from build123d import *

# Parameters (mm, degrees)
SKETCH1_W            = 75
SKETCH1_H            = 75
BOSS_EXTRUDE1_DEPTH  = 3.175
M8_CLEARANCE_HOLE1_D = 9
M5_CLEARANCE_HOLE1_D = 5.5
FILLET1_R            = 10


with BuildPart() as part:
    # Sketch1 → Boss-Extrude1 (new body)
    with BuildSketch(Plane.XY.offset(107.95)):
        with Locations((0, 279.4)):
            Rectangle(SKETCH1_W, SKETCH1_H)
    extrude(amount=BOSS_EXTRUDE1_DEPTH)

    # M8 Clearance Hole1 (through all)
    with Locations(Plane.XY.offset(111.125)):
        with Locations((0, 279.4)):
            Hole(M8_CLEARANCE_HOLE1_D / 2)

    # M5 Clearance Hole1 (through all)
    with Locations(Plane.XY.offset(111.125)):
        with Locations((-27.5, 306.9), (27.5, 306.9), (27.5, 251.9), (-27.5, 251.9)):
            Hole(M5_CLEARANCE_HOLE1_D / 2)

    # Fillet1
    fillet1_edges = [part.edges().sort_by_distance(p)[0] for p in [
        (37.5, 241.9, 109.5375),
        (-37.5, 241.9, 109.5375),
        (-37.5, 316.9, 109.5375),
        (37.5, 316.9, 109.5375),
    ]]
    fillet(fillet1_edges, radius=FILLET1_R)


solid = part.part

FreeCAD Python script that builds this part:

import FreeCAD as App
import Part
import Sketcher

V = App.Vector
Q = App.Units.Quantity


def edges_at(feature, points):
    """Names of the edges that pass closest to the given points."""
    edges = feature.Shape.Edges
    near = lambda p: min(range(len(edges)), key=lambda i: edges[i].distToShape(Part.Vertex(*p))[0])
    return sorted({f"Edge{near(p) + 1}" for p in points})


def add_polygon(sketch, points):
    """Adds a closed chain of lines whose ends are joined by coincident constraints."""
    first, n = sketch.GeometryCount, len(points)
    for a, b in zip(points, points[1:] + points[:1]):
        sketch.addGeometry(Part.LineSegment(App.Vector(*a, 0), App.Vector(*b, 0)), False)
    for i in range(n):
        sketch.addConstraint(Sketcher.Constraint("Coincident", first + i, 2, first + (i + 1) % n, 1))

doc = App.newDocument("Part")
body = doc.addObject("PartDesign::Body", "Body")

sketch1 = body.newObject("Sketcher::SketchObject", "Sketch")
sketch1.AttachmentSupport = (doc.getObject("XY_Plane"), [""])
sketch1.MapMode = "FlatFace"
sketch1.AttachmentOffset = App.Placement(V(0, 0, 107.95), App.Rotation())
add_polygon(sketch1, [(-38, 317), (-38, 242), (38, 242), (38, 317)])
sketch1.addConstraint(Sketcher.Constraint("Vertical", 0))
sketch1.addConstraint(Sketcher.Constraint("Horizontal", 1))
sketch1.addConstraint(Sketcher.Constraint("Vertical", 2))
sketch1.addConstraint(Sketcher.Constraint("Horizontal", 3))
sketch1.addConstraint(Sketcher.Constraint("Equal", 3, 0))
sketch1.addConstraint(Sketcher.Constraint("DistanceX", 1, 1, 1, 2, Q("75 mm")))
sketch1.addConstraint(Sketcher.Constraint("DistanceX", 0, 2, -1, 1, Q("37.5 mm")))
sketch1.addConstraint(Sketcher.Constraint("DistanceY", -1, 1, 0, 2, Q("241.9 mm")))
pad1 = body.newObject("PartDesign::Pad", "Pad")
pad1.Profile = sketch1
pad1.Length = 3.175

sketch2 = body.newObject("Sketcher::SketchObject", "Sketch001")
sketch2.AttachmentSupport = (doc.getObject("XY_Plane"), [""])
sketch2.MapMode = "FlatFace"
sketch2.AttachmentOffset = App.Placement(V(0, 0, 111.125), App.Rotation())
sketch2.addGeometry(Part.Circle(V(0, 279.4, 0), V(0, 0, 1), 4.5), False)
sketch2.addConstraint(Sketcher.Constraint("PointOnObject", 0, 3, -2))
sketch2.addConstraint(Sketcher.Constraint("Diameter", 0, Q("9 mm")))
sketch2.addConstraint(Sketcher.Constraint("DistanceY", -1, 1, 0, 3, Q("279.4 mm")))
doc.recompute()
hole = body.newObject("PartDesign::Hole", "Hole")
hole.Profile = sketch2
hole.ThreadType = "None"
hole.Diameter = 9
hole.DepthType = "ThroughAll"

sketch3 = body.newObject("Sketcher::SketchObject", "Sketch002")
sketch3.AttachmentSupport = (doc.getObject("XY_Plane"), [""])
sketch3.MapMode = "FlatFace"
sketch3.AttachmentOffset = App.Placement(V(0, 0, 111.125), App.Rotation())
sketch3.addGeometry(Part.Circle(V(-27.5, 306.9, 0), V(0, 0, 1), 2.8), False)
sketch3.addGeometry(Part.Circle(V(27.5, 306.9, 0), V(0, 0, 1), 2.8), False)
sketch3.addGeometry(Part.Circle(V(27.5, 251.9, 0), V(0, 0, 1), 2.8), False)
sketch3.addGeometry(Part.Circle(V(-27.5, 251.9, 0), V(0, 0, 1), 2.8), False)
sketch3.addConstraint(Sketcher.Constraint("Equal", 0, 1))
sketch3.addConstraint(Sketcher.Constraint("Equal", 1, 2))
sketch3.addConstraint(Sketcher.Constraint("Equal", 2, 3))
sketch3.addConstraint(Sketcher.Constraint("Symmetric", 0, 3, 1, 3, -2))
sketch3.addConstraint(Sketcher.Constraint("Symmetric", 2, 3, 3, 3, -2))
sketch3.addConstraint(Sketcher.Constraint("Vertical", 1, 3, 2, 3))
sketch3.addConstraint(Sketcher.Constraint("Diameter", 0, Q("5.5 mm")))
sketch3.addConstraint(Sketcher.Constraint("DistanceX", 0, 3, 1, 3, Q("55 mm")))
sketch3.addConstraint(Sketcher.Constraint("DistanceY", 2, 3, 1, 3, Q("55 mm")))
sketch3.addConstraint(Sketcher.Constraint("DistanceY", -1, 1, 0, 3, Q("306.9 mm")))
doc.recompute()
hole2 = body.newObject("PartDesign::Hole", "Hole001")
hole2.Profile = sketch3
hole2.ThreadType = "None"
hole2.Diameter = 5.5
hole2.DepthType = "ThroughAll"
doc.recompute()

fillet = body.newObject("PartDesign::Fillet", "Fillet")
fillet.Base = (hole2, edges_at(hole2, [
    (37.5, 241.9, 109.537),
    (-37.5, 241.9, 109.537),
    (-37.5, 316.9, 109.537),
    (37.5, 316.9, 109.537),
]))
fillet.Radius = 10

doc.recompute()
